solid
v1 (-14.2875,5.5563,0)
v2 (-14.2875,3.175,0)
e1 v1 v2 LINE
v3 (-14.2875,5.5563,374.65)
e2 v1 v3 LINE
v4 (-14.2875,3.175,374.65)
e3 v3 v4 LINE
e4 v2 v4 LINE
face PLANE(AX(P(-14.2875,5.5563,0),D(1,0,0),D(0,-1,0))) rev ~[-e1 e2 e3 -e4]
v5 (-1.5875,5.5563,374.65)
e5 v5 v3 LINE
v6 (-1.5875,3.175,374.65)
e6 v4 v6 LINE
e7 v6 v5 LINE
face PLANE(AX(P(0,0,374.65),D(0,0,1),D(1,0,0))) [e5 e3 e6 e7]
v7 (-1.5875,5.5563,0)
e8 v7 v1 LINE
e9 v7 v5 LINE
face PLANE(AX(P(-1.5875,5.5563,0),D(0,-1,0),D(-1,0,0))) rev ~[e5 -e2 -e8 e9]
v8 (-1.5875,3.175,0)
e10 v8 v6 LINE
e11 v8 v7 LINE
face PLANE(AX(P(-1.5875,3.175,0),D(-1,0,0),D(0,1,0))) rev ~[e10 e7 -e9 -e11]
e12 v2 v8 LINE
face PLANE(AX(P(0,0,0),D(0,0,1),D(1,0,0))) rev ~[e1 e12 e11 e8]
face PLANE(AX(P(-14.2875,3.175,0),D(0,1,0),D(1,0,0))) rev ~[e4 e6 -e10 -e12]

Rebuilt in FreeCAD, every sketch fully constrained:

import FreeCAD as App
import Part
import Sketcher

V = App.Vector
Q = App.Units.Quantity

doc = App.newDocument("Part")
body = doc.addObject("PartDesign::Body", "Body")

sketch1 = body.newObject("Sketcher::SketchObject", "Sketch")
sketch1.AttachmentSupport = (doc.getObject("XY_Plane"), [""])
sketch1.MapMode = "FlatFace"
sketch1.addGeometry([
    Part.LineSegment(V(-14.3, 5.6, 0), V(-14.3, 3.2, 0)),
    Part.LineSegment(V(-14.3, 3.2, 0), V(-1.6, 3.2, 0)),
    Part.LineSegment(V(-1.6, 3.2, 0), V(-1.6, 5.6, 0)),
    Part.LineSegment(V(-1.6, 5.6, 0), V(-14.3, 5.6, 0)),
], False)
sketch1.addConstraint([
    Sketcher.Constraint("Coincident", 0, 2, 1, 1),
    Sketcher.Constraint("Coincident", 1, 2, 2, 1),
    Sketcher.Constraint("Coincident", 2, 2, 3, 1),
    Sketcher.Constraint("Coincident", 3, 2, 0, 1),
    Sketcher.Constraint("Vertical", 0),
    Sketcher.Constraint("Horizontal", 1),
    Sketcher.Constraint("Vertical", 2),
    Sketcher.Constraint("Horizontal", 3),
    Sketcher.Constraint("DistanceX", 1, 1, 1, 2, Q("0.5 in")),
    Sketcher.Constraint("DistanceY", 0, 2, 0, 1, Q("0.093752 in")),
    Sketcher.Constraint("DistanceX", 0, 2, -1, 1, Q("0.5625 in")),
    Sketcher.Constraint("DistanceY", -1, 1, 0, 2, Q("0.125 in")),
])
pad1 = body.newObject("PartDesign::Pad", "Pad")
pad1.Profile = sketch1
pad1.Length = Q("14.75 in")

doc.recompute()
